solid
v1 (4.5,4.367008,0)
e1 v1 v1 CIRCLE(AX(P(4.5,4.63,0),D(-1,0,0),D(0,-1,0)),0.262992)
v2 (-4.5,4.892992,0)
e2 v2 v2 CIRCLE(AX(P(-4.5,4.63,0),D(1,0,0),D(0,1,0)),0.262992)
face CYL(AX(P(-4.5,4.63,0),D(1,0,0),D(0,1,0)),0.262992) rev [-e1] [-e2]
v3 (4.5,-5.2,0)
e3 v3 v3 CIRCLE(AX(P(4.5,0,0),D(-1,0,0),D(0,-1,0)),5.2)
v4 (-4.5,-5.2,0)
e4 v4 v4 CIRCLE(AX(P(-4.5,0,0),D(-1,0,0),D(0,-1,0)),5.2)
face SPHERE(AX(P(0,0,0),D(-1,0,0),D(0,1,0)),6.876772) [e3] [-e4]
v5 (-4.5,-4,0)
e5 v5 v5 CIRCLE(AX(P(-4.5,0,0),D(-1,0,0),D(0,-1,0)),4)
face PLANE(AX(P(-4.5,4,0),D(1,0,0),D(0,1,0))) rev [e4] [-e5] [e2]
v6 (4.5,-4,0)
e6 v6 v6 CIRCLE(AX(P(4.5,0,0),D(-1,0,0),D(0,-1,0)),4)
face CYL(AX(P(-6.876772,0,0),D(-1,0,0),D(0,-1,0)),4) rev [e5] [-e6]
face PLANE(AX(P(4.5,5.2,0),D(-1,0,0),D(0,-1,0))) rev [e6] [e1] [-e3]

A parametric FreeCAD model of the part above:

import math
import FreeCAD as App
import Part
import Sketcher
from FreeCAD import Vector
Q = App.Units.Quantity

doc = App.newDocument("Part")
body = doc.addObject("PartDesign::Body", "Body")

# Sketch on XY plane
sketch1 = doc.addObject("Sketcher::SketchObject", "Sketch")
body.addObject(sketch1)
sketch1.AttachmentSupport = (doc.XY_Plane, [""])
sketch1.MapMode = "FlatFace"
sketch1.addGeometry([
    Part.LineSegment(Vector(-4.5, 5.2, 0), Vector(-4.5, 4, 0)),
    Part.LineSegment(Vector(-4.5, 4, 0), Vector(4.5, 4, 0)),
    Part.LineSegment(Vector(4.5, 4, 0), Vector(4.5, 5.2, 0)),
    Part.ArcOfCircle(Part.Circle(Vector(0, 0, 0), Vector(0, 0, 1), 6.9), math.radians(49), math.radians(131)),
], False)
sketch1.addConstraint([
    Sketcher.Constraint("Coincident", 0, 2, 1, 1),
    Sketcher.Constraint("Coincident", 1, 2, 2, 1),
    Sketcher.Constraint("Coincident", 2, 2, 3, 1),
    Sketcher.Constraint("Coincident", 3, 2, 0, 1),
    Sketcher.Constraint("Vertical", 0),
    Sketcher.Constraint("Horizontal", 1),
    Sketcher.Constraint("Vertical", 2),
    Sketcher.Constraint("Coincident", 3, 3, -1, 1),
    Sketcher.Constraint("Horizontal", 2, 2, 3, 2),
    Sketcher.Constraint("DistanceX", 1, 1, 1, 2, Q("9 mm")),
    Sketcher.Constraint("DistanceY", 0, 2, 0, 1, Q("1.2 mm")),
    Sketcher.Constraint("DistanceY", -1, 1, 0, 2, Q("4 mm")),
])
revolution = doc.addObject("PartDesign::Revolution", "Revolution")
body.addObject(revolution)
revolution.Profile = sketch1
revolution.ReferenceAxis = (sketch1, ["H_Axis"])
revolution.Angle = 360

# Sketch on YZ plane
sketch2 = doc.addObject("Sketcher::SketchObject", "Sketch001")
body.addObject(sketch2)
sketch2.AttachmentSupport = (doc.YZ_Plane, [""])
sketch2.MapMode = "FlatFace"
sketch2.AttachmentOffset = App.Placement(Vector(0, 0, 4.5), App.Rotation())
sketch2.addGeometry(Part.Circle(Vector(4.63, 0, 0), Vector(0, 0, 1), 0.26), False)
sketch2.addConstraint([
    Sketcher.Constraint("PointOnObject", 0, 3, -1),
    Sketcher.Constraint("DistanceX", -1, 1, 0, 3, Q("4.63 mm")),
    Sketcher.Constraint("Diameter", 0, Q("0.525983 mm")),
])
pocket1 = doc.addObject("PartDesign::Pocket", "Pocket")
body.addObject(pocket1)
pocket1.Profile = sketch2
pocket1.Type = "ThroughAll"
pocket1.Midplane = True

doc.recompute()
